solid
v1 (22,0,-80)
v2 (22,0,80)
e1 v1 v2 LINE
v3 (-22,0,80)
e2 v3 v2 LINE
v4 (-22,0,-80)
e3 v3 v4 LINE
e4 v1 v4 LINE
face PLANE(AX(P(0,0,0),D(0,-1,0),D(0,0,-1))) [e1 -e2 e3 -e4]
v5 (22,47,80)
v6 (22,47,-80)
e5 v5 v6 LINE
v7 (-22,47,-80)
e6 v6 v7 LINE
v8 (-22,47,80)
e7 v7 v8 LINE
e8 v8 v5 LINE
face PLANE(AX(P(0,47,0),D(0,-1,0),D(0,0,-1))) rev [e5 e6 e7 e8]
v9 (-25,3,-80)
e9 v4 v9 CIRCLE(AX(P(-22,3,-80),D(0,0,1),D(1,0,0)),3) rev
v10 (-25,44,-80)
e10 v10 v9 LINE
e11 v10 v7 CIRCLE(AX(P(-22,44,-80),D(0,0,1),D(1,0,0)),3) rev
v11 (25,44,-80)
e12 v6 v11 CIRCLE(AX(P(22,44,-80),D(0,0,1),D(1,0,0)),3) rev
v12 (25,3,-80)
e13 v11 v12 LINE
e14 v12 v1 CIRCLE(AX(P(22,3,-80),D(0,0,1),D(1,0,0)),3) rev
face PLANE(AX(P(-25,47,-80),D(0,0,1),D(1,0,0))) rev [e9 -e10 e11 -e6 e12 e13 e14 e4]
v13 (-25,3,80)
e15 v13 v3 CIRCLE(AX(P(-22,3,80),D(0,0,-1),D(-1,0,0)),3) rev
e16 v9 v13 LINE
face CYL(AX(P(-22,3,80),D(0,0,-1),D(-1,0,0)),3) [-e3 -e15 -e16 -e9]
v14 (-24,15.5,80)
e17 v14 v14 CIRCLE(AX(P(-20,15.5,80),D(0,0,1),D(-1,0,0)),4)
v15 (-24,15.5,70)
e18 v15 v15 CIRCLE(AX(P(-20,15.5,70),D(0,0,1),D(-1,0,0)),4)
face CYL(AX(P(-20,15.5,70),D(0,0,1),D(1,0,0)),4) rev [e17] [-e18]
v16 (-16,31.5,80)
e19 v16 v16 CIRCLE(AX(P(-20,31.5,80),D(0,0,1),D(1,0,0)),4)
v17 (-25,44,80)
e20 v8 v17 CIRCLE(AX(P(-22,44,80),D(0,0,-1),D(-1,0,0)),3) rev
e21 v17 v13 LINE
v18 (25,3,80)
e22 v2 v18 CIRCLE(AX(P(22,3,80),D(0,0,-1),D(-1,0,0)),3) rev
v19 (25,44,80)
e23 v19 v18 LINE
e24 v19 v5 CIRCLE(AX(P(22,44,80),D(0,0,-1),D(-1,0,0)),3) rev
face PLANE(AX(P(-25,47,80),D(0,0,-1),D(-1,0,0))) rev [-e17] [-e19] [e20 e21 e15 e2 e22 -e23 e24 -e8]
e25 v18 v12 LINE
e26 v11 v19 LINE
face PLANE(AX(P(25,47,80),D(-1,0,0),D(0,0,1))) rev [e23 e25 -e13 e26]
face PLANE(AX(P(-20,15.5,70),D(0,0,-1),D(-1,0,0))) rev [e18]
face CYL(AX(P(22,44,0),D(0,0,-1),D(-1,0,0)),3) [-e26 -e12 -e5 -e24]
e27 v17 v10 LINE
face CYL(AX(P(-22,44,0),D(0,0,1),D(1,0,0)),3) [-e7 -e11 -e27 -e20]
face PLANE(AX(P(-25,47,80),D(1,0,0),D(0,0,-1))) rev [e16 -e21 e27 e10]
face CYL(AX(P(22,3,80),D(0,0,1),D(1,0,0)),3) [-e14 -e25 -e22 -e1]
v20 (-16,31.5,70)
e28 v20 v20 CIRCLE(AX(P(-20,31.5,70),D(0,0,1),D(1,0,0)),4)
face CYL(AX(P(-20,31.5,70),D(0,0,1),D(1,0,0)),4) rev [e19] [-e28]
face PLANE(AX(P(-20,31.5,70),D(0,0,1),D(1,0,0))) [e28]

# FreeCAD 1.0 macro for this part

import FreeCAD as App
import Part
import Sketcher

V = App.Vector


def edges_at(feature, points):
    """Names of the edges that pass closest to the given points."""
    edges = feature.Shape.Edges
    near = lambda p: min(range(len(edges)), key=lambda i: edges[i].distToShape(Part.Vertex(*p))[0])
    return sorted({f"Edge{near(p) + 1}" for p in points})


def add_polygon(sketch, points):
    """Adds a closed chain of lines whose ends are joined by coincident constraints."""
    first, n = sketch.GeometryCount, len(points)
    for a, b in zip(points, points[1:] + points[:1]):
        sketch.addGeometry(Part.LineSegment(App.Vector(*a, 0), App.Vector(*b, 0)), False)
    for i in range(n):
        sketch.addConstraint(Sketcher.Constraint("Coincident", first + i, 2, first + (i + 1) % n, 1))

doc = App.newDocument("Part")
body = doc.addObject("PartDesign::Body", "Body")

sketch1 = doc.addObject("Sketcher::SketchObject", "Sketch")
body.addObject(sketch1)
sketch1.AttachmentSupport = (doc.XZ_Plane, [""])
sketch1.MapMode = "FlatFace"
add_polygon(sketch1, [(-25, -80), (-25, 80), (25, 80), (25, -80)])
sketch1.addConstraint([
    Sketcher.Constraint("Vertical", 0),
    Sketcher.Constraint("Horizontal", 1),
    Sketcher.Constraint("Vertical", 2),
    Sketcher.Constraint("Horizontal", 3),
    Sketcher.Constraint("Symmetric", 0, 2, 2, 2, -1, 1),
    Sketcher.Constraint("DistanceX", 1, 1, 1, 2, 50.0),
    Sketcher.Constraint("DistanceY", 0, 1, 0, 2, 160.0),
])
pad1 = doc.addObject("PartDesign::Pad", "Pad")
body.addObject(pad1)
pad1.Profile = sketch1
pad1.Length = 47
pad1.Reversed = True

sketch2 = doc.addObject("Sketcher::SketchObject", "Sketch001")
body.addObject(sketch2)
sketch2.AttachmentSupport = (doc.XY_Plane, [""])
sketch2.MapMode = "FlatFace"
sketch2.AttachmentOffset = App.Placement(V(0, 0, 80), App.Rotation())
sketch2.addGeometry([
    Part.Circle(V(-20, 31.5, 0), V(0, 0, 1), 4),
    Part.Circle(V(-20, 15.5, 0), V(0, 0, 1), 4),
], False)
sketch2.addConstraint([
    Sketcher.Constraint("Equal", 0, 1),
    Sketcher.Constraint("Vertical", 0, 3, 1, 3),
    Sketcher.Constraint("Diameter", 0, 8.0),
    Sketcher.Constraint("DistanceX", 0, 3, -1, 1, 20.0),
    Sketcher.Constraint("DistanceY", 1, 3, 0, 3, 16.0),
    Sketcher.Constraint("DistanceY", -1, 1, 0, 3, 31.5),
])
pocket1 = doc.addObject("PartDesign::Pocket", "Pocket")
body.addObject(pocket1)
pocket1.Profile = sketch2
pocket1.Length = 10
doc.recompute()

fillet = doc.addObject("PartDesign::Fillet", "Fillet")
body.addObject(fillet)
fillet.Base = (pocket1, edges_at(pocket1, [
    (-25, 47, 0),
    (25, 47, 0),
    (-25, 0, 0),
    (25, 0, 0),
]))
fillet.Radius = 3

doc.recompute()
